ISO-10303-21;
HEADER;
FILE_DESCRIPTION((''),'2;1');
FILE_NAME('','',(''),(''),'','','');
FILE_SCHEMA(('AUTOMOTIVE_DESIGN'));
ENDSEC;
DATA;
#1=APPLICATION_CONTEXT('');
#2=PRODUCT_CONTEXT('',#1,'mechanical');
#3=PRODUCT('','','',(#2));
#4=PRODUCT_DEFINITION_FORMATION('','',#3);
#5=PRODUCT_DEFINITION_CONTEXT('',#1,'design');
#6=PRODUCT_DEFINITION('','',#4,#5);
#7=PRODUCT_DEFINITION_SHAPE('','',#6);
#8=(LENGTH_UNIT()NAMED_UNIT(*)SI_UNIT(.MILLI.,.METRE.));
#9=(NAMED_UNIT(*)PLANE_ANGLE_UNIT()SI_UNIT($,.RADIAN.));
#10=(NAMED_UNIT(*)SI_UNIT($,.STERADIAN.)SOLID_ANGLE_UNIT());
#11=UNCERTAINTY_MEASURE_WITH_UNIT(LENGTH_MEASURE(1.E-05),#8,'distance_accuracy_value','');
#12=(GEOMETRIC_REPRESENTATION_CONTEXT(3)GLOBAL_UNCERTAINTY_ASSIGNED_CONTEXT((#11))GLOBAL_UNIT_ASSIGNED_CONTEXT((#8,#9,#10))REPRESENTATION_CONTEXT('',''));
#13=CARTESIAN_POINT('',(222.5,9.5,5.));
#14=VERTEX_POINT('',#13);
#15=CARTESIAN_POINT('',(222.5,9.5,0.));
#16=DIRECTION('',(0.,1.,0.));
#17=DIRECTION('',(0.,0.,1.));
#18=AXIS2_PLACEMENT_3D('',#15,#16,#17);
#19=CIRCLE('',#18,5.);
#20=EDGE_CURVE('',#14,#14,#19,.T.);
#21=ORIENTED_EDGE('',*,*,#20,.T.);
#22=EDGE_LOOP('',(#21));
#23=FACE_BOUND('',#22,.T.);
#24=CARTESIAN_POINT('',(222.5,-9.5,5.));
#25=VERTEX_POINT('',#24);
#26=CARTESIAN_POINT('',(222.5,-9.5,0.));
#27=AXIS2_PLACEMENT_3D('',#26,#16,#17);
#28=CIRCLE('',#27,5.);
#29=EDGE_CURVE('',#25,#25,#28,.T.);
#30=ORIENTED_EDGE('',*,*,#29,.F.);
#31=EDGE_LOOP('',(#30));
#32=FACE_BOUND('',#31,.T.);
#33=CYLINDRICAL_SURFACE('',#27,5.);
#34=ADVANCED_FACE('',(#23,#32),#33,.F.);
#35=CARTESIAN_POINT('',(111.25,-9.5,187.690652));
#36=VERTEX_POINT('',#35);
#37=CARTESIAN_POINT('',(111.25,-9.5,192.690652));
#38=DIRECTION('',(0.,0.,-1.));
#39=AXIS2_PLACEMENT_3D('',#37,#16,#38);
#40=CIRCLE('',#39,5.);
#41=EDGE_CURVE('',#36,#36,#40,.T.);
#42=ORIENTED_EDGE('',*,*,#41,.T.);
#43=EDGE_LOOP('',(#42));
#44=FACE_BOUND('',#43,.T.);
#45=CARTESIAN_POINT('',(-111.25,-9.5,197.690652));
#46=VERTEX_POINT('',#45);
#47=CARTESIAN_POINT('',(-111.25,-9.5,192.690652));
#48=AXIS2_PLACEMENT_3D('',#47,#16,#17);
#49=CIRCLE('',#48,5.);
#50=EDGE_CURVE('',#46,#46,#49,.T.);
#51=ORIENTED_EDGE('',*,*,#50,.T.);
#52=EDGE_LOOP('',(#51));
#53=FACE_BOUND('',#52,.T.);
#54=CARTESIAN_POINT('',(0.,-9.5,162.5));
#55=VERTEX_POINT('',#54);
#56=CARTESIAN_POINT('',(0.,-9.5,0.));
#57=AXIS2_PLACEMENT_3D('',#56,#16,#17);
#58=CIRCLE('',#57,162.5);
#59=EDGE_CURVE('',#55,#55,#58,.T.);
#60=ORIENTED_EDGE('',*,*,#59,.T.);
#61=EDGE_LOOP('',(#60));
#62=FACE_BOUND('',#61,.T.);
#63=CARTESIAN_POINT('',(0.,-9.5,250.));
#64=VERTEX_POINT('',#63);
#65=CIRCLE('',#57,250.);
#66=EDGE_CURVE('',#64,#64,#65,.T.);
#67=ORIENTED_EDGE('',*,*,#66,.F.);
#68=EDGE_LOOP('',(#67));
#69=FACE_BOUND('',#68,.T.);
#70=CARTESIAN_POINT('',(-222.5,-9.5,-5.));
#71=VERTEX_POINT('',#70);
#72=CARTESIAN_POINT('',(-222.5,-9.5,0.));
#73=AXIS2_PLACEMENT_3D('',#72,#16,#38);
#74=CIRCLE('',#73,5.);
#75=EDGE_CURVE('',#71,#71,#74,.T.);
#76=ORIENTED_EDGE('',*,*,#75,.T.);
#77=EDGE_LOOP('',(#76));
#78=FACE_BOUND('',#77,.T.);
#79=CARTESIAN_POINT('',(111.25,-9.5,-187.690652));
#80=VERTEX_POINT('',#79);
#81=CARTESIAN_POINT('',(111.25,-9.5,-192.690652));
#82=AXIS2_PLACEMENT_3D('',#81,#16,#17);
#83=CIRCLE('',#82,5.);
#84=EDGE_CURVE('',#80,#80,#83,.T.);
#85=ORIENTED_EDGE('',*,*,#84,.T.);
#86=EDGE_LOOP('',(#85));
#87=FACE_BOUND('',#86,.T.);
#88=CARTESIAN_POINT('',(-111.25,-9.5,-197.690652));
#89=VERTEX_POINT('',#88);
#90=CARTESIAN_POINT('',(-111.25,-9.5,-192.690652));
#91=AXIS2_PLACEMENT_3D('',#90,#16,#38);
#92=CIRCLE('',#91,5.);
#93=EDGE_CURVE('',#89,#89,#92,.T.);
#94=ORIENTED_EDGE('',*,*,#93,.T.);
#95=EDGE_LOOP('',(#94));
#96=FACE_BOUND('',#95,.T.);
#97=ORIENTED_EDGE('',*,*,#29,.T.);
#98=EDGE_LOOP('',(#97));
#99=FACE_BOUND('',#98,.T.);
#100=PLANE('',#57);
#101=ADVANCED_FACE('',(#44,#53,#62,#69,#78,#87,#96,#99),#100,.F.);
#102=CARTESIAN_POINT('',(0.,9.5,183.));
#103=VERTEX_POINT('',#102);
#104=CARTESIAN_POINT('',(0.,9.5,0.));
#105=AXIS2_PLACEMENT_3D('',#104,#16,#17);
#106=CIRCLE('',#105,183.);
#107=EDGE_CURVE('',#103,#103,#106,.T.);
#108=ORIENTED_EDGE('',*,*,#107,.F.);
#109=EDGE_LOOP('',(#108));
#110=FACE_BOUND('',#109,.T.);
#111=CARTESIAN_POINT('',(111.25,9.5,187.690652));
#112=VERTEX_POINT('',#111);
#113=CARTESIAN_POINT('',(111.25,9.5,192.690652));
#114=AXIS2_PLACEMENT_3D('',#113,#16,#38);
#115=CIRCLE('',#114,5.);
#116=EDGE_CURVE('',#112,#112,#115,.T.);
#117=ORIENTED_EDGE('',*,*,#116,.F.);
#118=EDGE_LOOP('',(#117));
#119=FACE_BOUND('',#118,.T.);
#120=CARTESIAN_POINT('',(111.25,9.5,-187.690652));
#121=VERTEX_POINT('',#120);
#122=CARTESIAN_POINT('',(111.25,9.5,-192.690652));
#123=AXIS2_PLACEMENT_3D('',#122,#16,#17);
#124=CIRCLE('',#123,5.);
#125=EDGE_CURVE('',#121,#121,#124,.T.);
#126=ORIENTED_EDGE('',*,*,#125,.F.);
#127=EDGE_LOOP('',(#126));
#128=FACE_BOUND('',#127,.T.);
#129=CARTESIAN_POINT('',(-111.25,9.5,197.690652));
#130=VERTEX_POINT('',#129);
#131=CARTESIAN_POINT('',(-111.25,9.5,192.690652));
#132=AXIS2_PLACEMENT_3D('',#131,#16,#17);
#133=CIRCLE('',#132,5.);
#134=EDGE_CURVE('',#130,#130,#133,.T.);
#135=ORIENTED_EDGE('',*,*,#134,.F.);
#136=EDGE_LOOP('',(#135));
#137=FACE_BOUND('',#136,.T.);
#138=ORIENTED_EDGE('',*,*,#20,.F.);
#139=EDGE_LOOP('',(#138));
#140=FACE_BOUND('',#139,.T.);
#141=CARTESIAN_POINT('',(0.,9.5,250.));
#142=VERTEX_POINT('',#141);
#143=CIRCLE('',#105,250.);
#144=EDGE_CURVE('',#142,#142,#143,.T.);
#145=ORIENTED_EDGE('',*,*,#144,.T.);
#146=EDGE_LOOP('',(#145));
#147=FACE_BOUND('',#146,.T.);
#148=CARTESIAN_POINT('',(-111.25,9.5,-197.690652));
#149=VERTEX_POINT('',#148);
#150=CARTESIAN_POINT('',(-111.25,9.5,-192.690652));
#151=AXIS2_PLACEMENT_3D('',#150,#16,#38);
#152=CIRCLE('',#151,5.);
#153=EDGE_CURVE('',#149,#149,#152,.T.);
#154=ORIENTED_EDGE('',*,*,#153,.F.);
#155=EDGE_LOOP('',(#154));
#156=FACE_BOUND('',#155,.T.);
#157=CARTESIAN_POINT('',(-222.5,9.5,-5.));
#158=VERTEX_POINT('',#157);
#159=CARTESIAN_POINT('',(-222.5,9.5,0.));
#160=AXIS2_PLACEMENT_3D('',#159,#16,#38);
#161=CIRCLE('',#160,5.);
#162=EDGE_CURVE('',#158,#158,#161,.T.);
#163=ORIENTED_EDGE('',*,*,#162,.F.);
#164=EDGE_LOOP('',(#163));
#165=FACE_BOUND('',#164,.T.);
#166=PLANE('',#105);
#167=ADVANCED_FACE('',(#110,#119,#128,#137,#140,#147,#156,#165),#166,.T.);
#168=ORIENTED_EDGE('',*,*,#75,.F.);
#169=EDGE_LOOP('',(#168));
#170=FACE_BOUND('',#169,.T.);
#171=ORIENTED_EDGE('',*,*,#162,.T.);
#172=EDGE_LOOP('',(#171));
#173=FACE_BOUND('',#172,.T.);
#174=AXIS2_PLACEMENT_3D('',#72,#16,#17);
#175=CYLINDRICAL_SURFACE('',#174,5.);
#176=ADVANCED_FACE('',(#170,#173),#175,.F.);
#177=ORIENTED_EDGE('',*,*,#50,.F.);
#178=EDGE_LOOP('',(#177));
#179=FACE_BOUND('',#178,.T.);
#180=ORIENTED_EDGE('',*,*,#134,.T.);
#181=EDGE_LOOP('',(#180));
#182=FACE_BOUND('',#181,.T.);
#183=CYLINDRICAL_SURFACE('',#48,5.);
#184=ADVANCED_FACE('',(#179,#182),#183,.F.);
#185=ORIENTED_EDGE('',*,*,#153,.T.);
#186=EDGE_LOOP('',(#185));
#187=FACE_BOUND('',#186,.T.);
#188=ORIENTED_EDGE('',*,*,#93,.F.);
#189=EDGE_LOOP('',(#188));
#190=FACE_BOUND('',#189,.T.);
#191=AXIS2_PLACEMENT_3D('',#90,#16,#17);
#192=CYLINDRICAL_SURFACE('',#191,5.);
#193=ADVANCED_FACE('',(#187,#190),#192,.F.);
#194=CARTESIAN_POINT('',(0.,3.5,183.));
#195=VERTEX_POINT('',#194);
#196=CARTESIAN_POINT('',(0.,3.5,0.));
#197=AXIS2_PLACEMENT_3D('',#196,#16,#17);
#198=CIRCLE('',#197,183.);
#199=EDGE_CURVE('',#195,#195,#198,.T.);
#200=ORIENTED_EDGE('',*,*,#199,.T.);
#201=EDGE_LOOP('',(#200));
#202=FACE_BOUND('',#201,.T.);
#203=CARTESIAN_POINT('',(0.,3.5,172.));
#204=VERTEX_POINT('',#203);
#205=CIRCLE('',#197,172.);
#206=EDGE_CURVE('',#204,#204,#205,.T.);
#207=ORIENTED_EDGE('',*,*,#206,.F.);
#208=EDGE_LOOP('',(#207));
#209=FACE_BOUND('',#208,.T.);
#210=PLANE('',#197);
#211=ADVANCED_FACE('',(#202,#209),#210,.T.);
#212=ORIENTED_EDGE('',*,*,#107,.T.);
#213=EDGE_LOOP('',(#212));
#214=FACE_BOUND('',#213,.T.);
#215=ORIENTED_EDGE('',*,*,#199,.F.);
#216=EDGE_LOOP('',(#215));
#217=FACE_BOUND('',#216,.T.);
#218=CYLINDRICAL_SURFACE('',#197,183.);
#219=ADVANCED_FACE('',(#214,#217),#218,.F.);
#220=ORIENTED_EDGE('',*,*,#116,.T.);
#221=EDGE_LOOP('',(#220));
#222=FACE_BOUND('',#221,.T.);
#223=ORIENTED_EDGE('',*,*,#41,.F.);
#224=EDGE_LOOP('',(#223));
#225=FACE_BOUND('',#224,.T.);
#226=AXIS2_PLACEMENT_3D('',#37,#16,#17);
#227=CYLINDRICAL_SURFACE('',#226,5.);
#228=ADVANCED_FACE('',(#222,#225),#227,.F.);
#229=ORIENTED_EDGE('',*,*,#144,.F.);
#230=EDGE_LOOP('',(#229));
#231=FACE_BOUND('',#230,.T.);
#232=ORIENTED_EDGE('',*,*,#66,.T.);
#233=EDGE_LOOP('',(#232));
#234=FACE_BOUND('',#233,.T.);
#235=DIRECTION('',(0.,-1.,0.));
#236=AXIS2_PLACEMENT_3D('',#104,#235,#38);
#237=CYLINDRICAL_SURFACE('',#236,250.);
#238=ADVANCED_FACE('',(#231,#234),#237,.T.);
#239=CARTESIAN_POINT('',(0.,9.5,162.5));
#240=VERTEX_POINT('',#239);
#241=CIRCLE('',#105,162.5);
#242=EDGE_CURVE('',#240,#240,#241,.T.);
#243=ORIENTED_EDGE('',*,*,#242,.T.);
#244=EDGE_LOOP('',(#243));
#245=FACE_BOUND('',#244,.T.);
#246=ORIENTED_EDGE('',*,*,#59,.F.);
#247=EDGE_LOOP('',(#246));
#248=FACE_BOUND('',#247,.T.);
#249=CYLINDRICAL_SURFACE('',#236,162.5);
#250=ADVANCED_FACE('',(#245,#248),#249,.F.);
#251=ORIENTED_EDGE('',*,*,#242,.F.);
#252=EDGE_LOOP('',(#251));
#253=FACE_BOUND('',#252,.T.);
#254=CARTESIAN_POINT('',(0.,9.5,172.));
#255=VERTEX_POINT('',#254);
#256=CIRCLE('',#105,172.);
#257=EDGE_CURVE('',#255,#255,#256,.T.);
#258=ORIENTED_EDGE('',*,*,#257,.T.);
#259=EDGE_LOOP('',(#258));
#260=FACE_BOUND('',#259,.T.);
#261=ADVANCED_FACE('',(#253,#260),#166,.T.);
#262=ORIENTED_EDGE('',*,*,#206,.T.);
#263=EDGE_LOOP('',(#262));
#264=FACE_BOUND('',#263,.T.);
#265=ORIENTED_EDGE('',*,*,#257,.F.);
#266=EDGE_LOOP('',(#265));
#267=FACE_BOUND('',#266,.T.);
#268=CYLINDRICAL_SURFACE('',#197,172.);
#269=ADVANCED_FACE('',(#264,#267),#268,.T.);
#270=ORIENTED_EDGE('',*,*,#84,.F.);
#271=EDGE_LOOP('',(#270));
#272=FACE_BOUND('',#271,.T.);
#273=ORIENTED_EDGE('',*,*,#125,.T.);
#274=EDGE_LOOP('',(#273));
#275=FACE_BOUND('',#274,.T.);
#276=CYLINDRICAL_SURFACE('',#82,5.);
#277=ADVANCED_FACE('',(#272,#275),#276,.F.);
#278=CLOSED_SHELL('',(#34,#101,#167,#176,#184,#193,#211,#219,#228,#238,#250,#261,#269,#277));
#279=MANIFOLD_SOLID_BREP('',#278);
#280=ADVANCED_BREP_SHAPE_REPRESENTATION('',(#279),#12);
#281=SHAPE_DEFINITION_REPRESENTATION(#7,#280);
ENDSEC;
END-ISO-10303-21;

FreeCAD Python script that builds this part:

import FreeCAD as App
import Part
import Sketcher

V = App.Vector

doc = App.newDocument("Part")
params = doc.addObject("Spreadsheet::Sheet", "Params")
for row, (alias, value) in enumerate([
    ("sketch1_diameter", "500 mm"),
    ("sketch1_diameter2", "325 mm"),
    ("pad1_length", "19 mm"),
    ("sketch2_diameter", "10 mm"),
    ("sketch3_diameter", "366 mm"),
    ("sketch3_diameter2", "344 mm"),
    ("pocket2_length", "6 mm"),
], start=1):
    params.set(f"A{row}", alias)
    params.set(f"B{row}", "=" + value)
    params.setAlias(f"B{row}", alias)

body = doc.addObject("PartDesign::Body", "Body")

# Sketch on XZ plane
sketch1 = body.newObject("Sketcher::SketchObject", "Sketch")
sketch1.AttachmentSupport = (doc.getObject("XZ_Plane"), [""])
sketch1.MapMode = "FlatFace"
sketch1.addGeometry([
    Part.Circle(V(0, 0, 0), V(0, 0, 1), 250),
    Part.Circle(V(0, 0, 0), V(0, 0, 1), 162),
], False)
sketch1.addConstraint([
    Sketcher.Constraint("Coincident", 0, 3, -1, 1),
    Sketcher.Constraint("Coincident", 1, 3, -1, 1),
    Sketcher.Constraint("Diameter", 0, 500.0),
    Sketcher.Constraint("Diameter", 1, 325.0),
])
sketch1.setExpression("Constraints[2]", "Params.sketch1_diameter")
sketch1.setExpression("Constraints[3]", "Params.sketch1_diameter2")
pad1 = body.newObject("PartDesign::Pad", "Pad")
pad1.Profile = sketch1
pad1.setExpression("Length", "Params.pad1_length")
pad1.Midplane = True

# Sketch on XZ plane
sketch2 = body.newObject("Sketcher::SketchObject", "Sketch001")
sketch2.AttachmentSupport = (doc.getObject("XZ_Plane"), [""])
sketch2.MapMode = "FlatFace"
sketch2.AttachmentOffset = App.Placement(V(0, 0, -9.5), App.Rotation())
sketch2.addGeometry([
    Part.Circle(V(111, -193, 0), V(0, 0, 1), 5),  # 0
    Part.Circle(V(222, 0, 0), V(0, 0, 1), 5),  # 1
    Part.Circle(V(-222, 0, 0), V(0, 0, 1), 5),  # 2
    Part.Circle(V(-111, -193, 0), V(0, 0, 1), 5),  # 3
    Part.Circle(V(111, 193, 0), V(0, 0, 1), 5),  # 4
    Part.Circle(V(-111, 193, 0), V(0, 0, 1), 5),  # 5
], False)
sketch2.addConstraint([
    Sketcher.Constraint("Equal", 0, 1),
    Sketcher.Constraint("Equal", 1, 2),
    Sketcher.Constraint("Equal", 2, 3),
    Sketcher.Constraint("Equal", 3, 4),
    Sketcher.Constraint("Equal", 4, 5),
    Sketcher.Constraint("Symmetric", 1, 3, 2, 3, -1, 1),
    Sketcher.Constraint("Symmetric", 3, 3, 4, 3, -1, 1),
    Sketcher.Constraint("Symmetric", 0, 3, 5, 3, -1, 1),
    Sketcher.Constraint("Symmetric", 0, 3, 3, 3, -2),
    Sketcher.Constraint("PointOnObject", 1, 3, -1),
    Sketcher.Constraint("Diameter", 0, 10.0),
    Sketcher.Constraint("DistanceX", 2, 3, 1, 3, 445.0),
    Sketcher.Constraint("DistanceX", 3, 3, 0, 3, 222.5),
    Sketcher.Constraint("DistanceY", 0, 3, -1, 1, 192.690652),
])
sketch2.setExpression("Constraints[10]", "Params.sketch2_diameter")
pocket1 = body.newObject("PartDesign::Pocket", "Pocket")
pocket1.Profile = sketch2
pocket1.Type = "ThroughAll"
pocket1.Reversed = True

# Sketch on XZ plane
sketch3 = body.newObject("Sketcher::SketchObject", "Sketch002")
sketch3.AttachmentSupport = (doc.getObject("XZ_Plane"), [""])
sketch3.MapMode = "FlatFace"
sketch3.AttachmentOffset = App.Placement(V(0, 0, -9.5), App.Rotation())
sketch3.addGeometry([
    Part.Circle(V(0, 0, 0), V(0, 0, 1), 183),
    Part.Circle(V(0, 0, 0), V(0, 0, 1), 172),
], False)
sketch3.addConstraint([
    Sketcher.Constraint("Coincident", 0, 3, -1, 1),
    Sketcher.Constraint("Coincident", 1, 3, -1, 1),
    Sketcher.Constraint("Diameter", 0, 366.0),
    Sketcher.Constraint("Diameter", 1, 344.0),
])
sketch3.setExpression("Constraints[2]", "Params.sketch3_diameter")
sketch3.setExpression("Constraints[3]", "Params.sketch3_diameter2")
pocket2 = body.newObject("PartDesign::Pocket", "Pocket001")
pocket2.Profile = sketch3
pocket2.setExpression("Length", "Params.pocket2_length")
pocket2.Reversed = True

doc.recompute()
